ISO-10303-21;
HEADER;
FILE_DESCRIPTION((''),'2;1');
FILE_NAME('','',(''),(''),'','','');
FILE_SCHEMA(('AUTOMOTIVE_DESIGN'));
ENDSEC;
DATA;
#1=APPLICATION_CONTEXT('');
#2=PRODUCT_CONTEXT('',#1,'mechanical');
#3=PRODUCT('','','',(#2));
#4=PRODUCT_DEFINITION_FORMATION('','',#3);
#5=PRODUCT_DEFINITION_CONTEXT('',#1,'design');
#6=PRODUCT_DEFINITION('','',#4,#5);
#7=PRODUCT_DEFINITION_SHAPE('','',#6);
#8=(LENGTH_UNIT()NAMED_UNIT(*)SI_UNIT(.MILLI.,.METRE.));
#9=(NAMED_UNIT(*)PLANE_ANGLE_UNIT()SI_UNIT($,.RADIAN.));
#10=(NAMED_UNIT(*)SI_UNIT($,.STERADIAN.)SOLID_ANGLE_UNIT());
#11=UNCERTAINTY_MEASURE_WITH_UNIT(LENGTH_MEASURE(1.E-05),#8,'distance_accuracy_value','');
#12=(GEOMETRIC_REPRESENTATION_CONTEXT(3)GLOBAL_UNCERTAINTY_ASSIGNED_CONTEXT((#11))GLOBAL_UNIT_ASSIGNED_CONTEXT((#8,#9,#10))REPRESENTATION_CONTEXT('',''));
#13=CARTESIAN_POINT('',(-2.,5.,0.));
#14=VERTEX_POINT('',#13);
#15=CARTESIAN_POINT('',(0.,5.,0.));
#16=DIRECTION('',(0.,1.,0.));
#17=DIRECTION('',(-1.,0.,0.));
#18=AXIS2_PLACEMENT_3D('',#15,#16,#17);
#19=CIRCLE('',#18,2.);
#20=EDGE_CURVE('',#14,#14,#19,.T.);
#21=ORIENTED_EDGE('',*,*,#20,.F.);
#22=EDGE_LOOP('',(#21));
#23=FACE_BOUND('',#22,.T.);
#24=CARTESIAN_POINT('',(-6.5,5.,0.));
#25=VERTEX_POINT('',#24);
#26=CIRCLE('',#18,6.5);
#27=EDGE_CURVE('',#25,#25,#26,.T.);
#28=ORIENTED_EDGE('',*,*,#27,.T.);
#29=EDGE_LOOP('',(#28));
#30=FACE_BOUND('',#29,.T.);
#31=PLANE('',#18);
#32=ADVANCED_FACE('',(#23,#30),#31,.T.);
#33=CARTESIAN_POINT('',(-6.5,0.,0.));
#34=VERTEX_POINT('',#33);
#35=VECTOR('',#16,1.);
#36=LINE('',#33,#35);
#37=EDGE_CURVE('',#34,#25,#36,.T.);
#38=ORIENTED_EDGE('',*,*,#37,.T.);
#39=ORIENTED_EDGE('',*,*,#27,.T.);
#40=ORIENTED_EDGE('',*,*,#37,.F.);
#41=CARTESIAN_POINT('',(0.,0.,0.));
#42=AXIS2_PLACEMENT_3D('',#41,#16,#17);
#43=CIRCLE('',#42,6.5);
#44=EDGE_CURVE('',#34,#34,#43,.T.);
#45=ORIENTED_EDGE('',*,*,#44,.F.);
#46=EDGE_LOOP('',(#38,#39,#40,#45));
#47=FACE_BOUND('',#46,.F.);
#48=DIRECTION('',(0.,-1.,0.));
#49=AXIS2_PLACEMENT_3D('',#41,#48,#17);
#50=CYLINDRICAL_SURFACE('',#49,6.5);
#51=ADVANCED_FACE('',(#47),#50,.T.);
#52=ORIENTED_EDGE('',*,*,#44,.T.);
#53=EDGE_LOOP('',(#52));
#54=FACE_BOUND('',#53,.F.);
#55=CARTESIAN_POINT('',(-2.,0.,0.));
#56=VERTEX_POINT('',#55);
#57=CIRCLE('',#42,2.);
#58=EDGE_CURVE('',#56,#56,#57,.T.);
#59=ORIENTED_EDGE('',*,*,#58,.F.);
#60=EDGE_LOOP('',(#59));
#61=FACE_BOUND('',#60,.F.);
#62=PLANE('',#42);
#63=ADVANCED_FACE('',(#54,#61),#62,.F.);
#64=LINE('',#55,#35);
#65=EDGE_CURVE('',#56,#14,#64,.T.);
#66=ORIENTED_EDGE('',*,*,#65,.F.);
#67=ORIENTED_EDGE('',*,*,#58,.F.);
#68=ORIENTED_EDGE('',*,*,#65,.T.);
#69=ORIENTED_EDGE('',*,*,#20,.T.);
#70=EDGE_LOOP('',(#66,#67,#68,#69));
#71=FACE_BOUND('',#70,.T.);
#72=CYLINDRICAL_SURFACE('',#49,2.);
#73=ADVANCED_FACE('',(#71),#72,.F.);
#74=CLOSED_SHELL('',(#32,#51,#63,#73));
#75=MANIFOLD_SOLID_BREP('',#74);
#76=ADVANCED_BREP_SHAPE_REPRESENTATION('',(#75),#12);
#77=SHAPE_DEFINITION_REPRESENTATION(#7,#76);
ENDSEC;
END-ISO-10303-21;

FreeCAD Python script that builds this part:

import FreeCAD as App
import Part
import Sketcher
from FreeCAD import Vector
Q = App.Units.Quantity

doc = App.newDocument("Part")
body = doc.addObject("PartDesign::Body", "Body")

sketch1 = doc.addObject("Sketcher::SketchObject", "Sketch")
body.addObject(sketch1)
sketch1.AttachmentSupport = (doc.XZ_Plane, [""])
sketch1.MapMode = "FlatFace"
sketch1.addGeometry([
    Part.Circle(Vector(0, 0, 0), Vector(0, 0, 1), 6.5),
    Part.Circle(Vector(0, 0, 0), Vector(0, 0, 1), 2),
], False)
sketch1.addConstraint([
    Sketcher.Constraint("Coincident", 0, 3, -1, 1),
    Sketcher.Constraint("Coincident", 1, 3, -1, 1),
    Sketcher.Constraint("Diameter", 0, Q("13 mm")),
    Sketcher.Constraint("Diameter", 1, Q("4 mm")),
])
pad1 = doc.addObject("PartDesign::Pad", "Pad")
body.addObject(pad1)
pad1.Profile = sketch1
pad1.Length = 5
pad1.Reversed = True

doc.recompute()
